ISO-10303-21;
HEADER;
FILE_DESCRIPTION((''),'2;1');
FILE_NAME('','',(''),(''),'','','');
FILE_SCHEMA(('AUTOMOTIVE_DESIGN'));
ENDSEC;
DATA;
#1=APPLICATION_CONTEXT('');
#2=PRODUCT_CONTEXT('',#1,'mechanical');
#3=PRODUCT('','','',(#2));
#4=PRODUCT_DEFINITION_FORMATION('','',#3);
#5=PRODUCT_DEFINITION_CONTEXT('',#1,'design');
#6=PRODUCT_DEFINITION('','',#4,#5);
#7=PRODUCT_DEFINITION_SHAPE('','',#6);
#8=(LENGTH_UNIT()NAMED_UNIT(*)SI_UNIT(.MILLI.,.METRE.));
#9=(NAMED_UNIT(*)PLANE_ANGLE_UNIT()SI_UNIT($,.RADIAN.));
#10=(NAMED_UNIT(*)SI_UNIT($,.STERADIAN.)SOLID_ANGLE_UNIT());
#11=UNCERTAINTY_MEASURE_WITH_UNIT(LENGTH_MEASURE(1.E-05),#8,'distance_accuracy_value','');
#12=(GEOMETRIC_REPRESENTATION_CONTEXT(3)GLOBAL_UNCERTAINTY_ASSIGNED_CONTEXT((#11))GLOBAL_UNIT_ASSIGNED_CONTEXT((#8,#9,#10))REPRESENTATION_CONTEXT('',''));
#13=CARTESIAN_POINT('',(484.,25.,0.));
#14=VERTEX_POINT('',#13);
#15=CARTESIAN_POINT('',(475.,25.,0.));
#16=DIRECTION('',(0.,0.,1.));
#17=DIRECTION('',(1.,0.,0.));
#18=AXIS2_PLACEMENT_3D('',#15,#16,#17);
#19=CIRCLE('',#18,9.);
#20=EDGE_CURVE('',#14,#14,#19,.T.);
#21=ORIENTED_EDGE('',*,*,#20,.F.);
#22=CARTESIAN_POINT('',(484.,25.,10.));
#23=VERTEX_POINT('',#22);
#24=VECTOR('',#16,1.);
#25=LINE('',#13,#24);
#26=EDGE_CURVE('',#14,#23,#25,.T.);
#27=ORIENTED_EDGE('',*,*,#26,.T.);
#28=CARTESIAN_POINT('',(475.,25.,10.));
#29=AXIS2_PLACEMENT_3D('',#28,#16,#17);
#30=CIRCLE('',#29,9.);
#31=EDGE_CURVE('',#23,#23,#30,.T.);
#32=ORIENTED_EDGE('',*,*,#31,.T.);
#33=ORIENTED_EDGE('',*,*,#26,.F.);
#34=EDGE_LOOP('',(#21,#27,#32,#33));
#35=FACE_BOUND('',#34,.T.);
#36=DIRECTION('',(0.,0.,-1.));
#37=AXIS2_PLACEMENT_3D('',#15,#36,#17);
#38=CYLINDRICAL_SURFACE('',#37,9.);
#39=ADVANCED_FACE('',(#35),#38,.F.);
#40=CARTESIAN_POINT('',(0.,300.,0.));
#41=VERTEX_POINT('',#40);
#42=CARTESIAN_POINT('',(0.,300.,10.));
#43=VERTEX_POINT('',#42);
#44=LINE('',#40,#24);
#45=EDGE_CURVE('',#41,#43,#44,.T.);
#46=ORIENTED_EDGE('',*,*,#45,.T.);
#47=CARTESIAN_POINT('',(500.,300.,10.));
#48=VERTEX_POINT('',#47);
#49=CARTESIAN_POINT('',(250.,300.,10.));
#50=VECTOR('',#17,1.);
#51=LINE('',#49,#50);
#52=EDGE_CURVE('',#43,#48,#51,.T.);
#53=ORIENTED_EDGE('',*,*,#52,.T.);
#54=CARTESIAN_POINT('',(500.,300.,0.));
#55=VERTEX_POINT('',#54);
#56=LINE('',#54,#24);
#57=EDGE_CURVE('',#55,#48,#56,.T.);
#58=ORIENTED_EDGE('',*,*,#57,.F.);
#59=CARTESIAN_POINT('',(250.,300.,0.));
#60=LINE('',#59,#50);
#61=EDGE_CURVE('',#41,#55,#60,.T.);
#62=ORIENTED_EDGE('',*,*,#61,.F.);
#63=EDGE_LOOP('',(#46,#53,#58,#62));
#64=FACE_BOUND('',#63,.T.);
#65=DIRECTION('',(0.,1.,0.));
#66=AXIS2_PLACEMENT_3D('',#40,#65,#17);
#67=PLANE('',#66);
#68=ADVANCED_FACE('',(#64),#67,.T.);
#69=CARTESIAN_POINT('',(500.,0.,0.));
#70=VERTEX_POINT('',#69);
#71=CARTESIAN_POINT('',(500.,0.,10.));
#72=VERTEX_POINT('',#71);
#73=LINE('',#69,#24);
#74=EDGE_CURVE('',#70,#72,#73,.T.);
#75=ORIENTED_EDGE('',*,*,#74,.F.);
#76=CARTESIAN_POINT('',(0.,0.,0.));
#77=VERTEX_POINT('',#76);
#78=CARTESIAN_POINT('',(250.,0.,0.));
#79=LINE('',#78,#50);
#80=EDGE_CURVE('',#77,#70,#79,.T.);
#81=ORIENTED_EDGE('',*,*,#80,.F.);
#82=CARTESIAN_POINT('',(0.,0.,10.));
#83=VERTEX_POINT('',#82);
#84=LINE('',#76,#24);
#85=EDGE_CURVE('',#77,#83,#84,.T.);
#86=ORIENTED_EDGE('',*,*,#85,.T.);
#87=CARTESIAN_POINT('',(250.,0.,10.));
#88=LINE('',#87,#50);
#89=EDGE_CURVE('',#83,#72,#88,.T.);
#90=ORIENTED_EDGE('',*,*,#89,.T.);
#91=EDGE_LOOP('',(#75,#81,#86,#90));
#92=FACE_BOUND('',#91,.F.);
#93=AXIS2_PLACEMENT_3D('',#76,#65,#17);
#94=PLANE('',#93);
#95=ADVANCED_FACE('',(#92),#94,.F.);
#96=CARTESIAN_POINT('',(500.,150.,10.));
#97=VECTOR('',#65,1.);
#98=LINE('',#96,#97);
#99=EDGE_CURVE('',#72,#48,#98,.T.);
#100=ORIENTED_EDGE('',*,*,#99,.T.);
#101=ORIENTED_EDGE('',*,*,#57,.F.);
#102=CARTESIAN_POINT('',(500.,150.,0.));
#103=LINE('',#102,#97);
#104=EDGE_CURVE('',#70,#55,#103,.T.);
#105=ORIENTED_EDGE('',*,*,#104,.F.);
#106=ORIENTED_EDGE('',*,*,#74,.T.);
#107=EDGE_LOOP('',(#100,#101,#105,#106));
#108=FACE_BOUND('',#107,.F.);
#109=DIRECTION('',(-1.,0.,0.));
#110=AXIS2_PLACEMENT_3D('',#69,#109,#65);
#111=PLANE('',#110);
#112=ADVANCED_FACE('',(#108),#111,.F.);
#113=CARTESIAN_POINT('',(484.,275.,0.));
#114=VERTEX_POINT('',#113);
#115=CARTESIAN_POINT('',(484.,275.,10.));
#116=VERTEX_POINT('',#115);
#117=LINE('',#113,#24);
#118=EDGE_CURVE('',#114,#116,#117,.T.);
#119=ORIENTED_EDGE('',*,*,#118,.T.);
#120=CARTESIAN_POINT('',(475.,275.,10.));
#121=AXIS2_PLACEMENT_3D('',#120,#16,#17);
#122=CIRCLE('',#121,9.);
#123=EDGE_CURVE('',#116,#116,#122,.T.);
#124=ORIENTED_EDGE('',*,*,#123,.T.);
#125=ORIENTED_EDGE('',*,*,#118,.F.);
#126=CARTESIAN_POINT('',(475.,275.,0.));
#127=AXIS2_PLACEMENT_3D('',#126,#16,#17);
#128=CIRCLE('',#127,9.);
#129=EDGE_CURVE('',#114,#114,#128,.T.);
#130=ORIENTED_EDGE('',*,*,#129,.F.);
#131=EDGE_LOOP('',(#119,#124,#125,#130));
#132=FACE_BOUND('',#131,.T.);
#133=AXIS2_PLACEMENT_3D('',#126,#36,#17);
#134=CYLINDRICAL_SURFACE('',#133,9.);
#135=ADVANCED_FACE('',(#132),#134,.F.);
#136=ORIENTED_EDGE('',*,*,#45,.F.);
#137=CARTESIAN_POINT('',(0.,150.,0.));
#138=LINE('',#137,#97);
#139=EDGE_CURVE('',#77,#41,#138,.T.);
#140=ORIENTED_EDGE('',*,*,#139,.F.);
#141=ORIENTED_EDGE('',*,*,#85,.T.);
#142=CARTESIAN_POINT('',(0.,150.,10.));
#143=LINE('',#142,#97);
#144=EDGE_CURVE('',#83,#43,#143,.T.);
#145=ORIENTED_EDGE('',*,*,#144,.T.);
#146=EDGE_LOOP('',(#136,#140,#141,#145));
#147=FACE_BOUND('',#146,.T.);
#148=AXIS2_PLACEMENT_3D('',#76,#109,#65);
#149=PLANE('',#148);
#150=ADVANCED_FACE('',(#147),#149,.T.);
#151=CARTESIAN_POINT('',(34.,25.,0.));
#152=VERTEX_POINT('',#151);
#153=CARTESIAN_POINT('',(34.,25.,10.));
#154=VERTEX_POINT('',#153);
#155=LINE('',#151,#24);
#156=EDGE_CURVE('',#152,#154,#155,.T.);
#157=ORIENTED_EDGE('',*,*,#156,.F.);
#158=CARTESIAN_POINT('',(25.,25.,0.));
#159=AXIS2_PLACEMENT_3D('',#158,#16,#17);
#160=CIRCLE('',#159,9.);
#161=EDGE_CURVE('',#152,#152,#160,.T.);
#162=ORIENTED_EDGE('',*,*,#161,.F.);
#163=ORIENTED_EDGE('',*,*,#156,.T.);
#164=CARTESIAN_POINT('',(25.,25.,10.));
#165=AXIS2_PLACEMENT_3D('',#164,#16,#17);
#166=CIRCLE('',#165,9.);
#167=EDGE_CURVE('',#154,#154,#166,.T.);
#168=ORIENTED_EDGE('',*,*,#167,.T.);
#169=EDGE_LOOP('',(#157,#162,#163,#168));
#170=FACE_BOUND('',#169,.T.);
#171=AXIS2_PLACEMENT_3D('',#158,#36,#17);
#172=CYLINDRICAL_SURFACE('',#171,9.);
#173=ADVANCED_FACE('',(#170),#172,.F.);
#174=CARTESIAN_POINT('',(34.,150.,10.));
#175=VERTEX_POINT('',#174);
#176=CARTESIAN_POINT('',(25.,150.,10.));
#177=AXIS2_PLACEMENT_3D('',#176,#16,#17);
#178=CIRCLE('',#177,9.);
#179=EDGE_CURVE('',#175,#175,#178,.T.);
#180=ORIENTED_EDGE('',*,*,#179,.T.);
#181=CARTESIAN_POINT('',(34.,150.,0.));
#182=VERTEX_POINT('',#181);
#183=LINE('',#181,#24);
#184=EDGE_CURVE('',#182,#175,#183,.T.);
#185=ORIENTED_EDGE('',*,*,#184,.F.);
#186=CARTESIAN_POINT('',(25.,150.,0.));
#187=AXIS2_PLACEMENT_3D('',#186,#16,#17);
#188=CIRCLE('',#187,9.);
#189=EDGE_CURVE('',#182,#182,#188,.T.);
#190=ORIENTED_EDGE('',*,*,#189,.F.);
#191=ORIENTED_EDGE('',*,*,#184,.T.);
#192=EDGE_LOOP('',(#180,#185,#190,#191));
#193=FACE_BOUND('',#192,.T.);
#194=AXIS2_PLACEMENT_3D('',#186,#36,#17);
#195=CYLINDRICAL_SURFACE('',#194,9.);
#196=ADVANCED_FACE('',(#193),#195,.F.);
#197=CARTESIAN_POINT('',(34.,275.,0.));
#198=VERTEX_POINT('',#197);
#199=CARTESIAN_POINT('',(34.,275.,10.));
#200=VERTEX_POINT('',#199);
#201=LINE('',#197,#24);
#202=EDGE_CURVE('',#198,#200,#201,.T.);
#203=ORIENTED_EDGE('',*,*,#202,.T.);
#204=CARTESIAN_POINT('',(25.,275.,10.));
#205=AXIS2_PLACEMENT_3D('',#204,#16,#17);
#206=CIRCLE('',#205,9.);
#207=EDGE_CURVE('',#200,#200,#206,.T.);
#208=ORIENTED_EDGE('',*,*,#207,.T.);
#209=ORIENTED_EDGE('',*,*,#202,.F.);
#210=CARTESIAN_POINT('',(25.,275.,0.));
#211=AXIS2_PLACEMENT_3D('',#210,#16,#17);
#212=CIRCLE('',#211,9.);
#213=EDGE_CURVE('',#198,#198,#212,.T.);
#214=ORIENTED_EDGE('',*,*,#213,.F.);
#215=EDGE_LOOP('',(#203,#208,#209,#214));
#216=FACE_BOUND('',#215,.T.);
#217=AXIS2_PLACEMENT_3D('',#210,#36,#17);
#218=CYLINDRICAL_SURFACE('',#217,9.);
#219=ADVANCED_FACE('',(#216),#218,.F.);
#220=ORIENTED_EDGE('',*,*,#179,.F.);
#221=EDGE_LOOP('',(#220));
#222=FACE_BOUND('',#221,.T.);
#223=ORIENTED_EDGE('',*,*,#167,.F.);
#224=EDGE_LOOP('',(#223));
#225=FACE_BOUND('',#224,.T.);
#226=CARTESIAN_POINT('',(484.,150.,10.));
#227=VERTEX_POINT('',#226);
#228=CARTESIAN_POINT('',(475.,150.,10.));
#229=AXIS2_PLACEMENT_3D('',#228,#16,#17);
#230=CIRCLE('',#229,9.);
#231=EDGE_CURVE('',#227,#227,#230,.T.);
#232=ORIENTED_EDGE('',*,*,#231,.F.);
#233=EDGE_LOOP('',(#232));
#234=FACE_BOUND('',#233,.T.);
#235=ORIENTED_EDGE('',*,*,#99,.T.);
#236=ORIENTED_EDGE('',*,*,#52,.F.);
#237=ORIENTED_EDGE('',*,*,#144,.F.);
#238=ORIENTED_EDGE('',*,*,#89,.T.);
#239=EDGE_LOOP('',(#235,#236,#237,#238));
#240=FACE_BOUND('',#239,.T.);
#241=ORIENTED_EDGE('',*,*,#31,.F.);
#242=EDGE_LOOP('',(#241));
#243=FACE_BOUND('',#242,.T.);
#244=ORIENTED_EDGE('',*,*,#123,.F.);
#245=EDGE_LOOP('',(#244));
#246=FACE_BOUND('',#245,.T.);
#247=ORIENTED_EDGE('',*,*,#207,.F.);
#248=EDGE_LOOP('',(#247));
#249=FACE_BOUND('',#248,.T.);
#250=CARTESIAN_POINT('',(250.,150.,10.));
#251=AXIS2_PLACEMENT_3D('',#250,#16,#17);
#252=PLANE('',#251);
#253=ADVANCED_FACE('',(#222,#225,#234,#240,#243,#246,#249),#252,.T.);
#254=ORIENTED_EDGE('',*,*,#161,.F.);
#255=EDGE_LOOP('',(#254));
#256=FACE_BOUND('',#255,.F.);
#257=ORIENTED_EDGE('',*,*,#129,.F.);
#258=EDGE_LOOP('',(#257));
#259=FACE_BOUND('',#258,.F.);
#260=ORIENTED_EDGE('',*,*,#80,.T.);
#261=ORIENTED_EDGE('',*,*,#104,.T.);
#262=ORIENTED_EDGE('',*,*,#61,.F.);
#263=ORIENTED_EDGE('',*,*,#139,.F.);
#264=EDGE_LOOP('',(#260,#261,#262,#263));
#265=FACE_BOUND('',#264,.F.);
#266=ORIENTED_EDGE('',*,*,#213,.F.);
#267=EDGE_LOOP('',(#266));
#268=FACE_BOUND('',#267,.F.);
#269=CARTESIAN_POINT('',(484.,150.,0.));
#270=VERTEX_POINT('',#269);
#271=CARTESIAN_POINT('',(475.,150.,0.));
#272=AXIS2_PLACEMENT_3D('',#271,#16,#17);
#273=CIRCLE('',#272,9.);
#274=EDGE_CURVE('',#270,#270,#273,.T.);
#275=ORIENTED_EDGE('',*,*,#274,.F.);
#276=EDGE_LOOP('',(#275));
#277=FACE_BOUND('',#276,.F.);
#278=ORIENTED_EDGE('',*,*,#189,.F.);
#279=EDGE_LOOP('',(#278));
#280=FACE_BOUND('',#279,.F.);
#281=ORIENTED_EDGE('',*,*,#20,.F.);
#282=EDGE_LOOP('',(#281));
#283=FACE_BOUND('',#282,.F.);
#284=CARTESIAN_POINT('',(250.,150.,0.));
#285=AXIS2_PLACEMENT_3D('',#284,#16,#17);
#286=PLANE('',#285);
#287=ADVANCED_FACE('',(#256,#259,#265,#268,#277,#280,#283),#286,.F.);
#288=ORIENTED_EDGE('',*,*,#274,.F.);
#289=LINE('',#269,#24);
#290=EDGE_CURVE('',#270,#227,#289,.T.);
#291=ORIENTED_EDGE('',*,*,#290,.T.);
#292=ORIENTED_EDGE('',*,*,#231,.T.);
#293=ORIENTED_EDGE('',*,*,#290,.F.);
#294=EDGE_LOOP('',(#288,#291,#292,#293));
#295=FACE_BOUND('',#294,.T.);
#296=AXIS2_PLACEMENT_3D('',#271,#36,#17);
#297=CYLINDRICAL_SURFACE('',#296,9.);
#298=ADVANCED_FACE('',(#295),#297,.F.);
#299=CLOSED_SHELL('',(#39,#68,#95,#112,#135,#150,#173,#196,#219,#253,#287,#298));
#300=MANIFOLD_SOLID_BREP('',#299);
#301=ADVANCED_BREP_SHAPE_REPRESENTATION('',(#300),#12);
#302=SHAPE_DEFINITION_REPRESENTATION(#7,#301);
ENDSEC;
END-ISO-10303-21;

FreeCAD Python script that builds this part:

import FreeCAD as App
import Part
import Sketcher

V = App.Vector
Q = App.Units.Quantity

doc = App.newDocument("Part")
body = doc.addObject("PartDesign::Body", "Body")

# Sketch on XY plane
sketch1 = body.newObject("Sketcher::SketchObject", "Sketch")
sketch1.AttachmentSupport = (doc.getObject("XY_Plane"), [""])
sketch1.MapMode = "FlatFace"
sketch1.addGeometry([
    Part.LineSegment(V(0, 300, 0), V(0, 0, 0)),  # 0
    Part.LineSegment(V(0, 0, 0), V(500, 0, 0)),  # 1
    Part.LineSegment(V(500, 0, 0), V(500, 300, 0)),  # 2
    Part.LineSegment(V(500, 300, 0), V(0, 300, 0)),  # 3
    Part.Circle(V(25, 25, 0), V(0, 0, 1), 9),  # 4
    Part.Circle(V(475, 25, 0), V(0, 0, 1), 9),  # 5
    Part.Circle(V(25, 150, 0), V(0, 0, 1), 9),  # 6
    Part.Circle(V(25, 275, 0), V(0, 0, 1), 9),  # 7
    Part.Circle(V(475, 150, 0), V(0, 0, 1), 9),  # 8
    Part.Circle(V(475, 275, 0), V(0, 0, 1), 9),  # 9
], False)
sketch1.addConstraint([
    Sketcher.Constraint("Coincident", 0, 2, 1, 1),
    Sketcher.Constraint("Coincident", 1, 2, 2, 1),
    Sketcher.Constraint("Coincident", 2, 2, 3, 1),
    Sketcher.Constraint("Coincident", 3, 2, 0, 1),
    Sketcher.Constraint("Vertical", 0),
    Sketcher.Constraint("Horizontal", 1),
    Sketcher.Constraint("Vertical", 2),
    Sketcher.Constraint("Horizontal", 3),
    Sketcher.Constraint("Coincident", 0, 2, -1, 1),
    Sketcher.Constraint("Equal", 4, 5),
    Sketcher.Constraint("Equal", 5, 6),
    Sketcher.Constraint("Equal", 6, 7),
    Sketcher.Constraint("Equal", 7, 8),
    Sketcher.Constraint("Equal", 8, 9),
    Sketcher.Constraint("Horizontal", 4, 3, 5, 3),
    Sketcher.Constraint("Horizontal", 6, 3, 8, 3),
    Sketcher.Constraint("Horizontal", 7, 3, 9, 3),
    Sketcher.Constraint("Vertical", 4, 3, 6, 3),
    Sketcher.Constraint("Vertical", 6, 3, 7, 3),
    Sketcher.Constraint("Vertical", 5, 3, 8, 3),
    Sketcher.Constraint("Vertical", 8, 3, 9, 3),
    Sketcher.Constraint("Diameter", 4, Q("18 mm")),
    Sketcher.Constraint("DistanceX", 1, 1, 1, 2, Q("500 mm")),
    Sketcher.Constraint("DistanceY", 0, 2, 0, 1, Q("300 mm")),
    Sketcher.Constraint("DistanceX", -1, 1, 4, 3, Q("25 mm")),
    Sketcher.Constraint("DistanceY", -1, 1, 4, 3, Q("25 mm")),
    Sketcher.Constraint("DistanceX", -1, 1, 5, 3, Q("475 mm")),
    Sketcher.Constraint("DistanceY", -1, 1, 6, 3, Q("150 mm")),
    Sketcher.Constraint("DistanceY", -1, 1, 7, 3, Q("275 mm")),
])
pad1 = body.newObject("PartDesign::Pad", "Pad")
pad1.Profile = sketch1
pad1.Length = 10

doc.recompute()
